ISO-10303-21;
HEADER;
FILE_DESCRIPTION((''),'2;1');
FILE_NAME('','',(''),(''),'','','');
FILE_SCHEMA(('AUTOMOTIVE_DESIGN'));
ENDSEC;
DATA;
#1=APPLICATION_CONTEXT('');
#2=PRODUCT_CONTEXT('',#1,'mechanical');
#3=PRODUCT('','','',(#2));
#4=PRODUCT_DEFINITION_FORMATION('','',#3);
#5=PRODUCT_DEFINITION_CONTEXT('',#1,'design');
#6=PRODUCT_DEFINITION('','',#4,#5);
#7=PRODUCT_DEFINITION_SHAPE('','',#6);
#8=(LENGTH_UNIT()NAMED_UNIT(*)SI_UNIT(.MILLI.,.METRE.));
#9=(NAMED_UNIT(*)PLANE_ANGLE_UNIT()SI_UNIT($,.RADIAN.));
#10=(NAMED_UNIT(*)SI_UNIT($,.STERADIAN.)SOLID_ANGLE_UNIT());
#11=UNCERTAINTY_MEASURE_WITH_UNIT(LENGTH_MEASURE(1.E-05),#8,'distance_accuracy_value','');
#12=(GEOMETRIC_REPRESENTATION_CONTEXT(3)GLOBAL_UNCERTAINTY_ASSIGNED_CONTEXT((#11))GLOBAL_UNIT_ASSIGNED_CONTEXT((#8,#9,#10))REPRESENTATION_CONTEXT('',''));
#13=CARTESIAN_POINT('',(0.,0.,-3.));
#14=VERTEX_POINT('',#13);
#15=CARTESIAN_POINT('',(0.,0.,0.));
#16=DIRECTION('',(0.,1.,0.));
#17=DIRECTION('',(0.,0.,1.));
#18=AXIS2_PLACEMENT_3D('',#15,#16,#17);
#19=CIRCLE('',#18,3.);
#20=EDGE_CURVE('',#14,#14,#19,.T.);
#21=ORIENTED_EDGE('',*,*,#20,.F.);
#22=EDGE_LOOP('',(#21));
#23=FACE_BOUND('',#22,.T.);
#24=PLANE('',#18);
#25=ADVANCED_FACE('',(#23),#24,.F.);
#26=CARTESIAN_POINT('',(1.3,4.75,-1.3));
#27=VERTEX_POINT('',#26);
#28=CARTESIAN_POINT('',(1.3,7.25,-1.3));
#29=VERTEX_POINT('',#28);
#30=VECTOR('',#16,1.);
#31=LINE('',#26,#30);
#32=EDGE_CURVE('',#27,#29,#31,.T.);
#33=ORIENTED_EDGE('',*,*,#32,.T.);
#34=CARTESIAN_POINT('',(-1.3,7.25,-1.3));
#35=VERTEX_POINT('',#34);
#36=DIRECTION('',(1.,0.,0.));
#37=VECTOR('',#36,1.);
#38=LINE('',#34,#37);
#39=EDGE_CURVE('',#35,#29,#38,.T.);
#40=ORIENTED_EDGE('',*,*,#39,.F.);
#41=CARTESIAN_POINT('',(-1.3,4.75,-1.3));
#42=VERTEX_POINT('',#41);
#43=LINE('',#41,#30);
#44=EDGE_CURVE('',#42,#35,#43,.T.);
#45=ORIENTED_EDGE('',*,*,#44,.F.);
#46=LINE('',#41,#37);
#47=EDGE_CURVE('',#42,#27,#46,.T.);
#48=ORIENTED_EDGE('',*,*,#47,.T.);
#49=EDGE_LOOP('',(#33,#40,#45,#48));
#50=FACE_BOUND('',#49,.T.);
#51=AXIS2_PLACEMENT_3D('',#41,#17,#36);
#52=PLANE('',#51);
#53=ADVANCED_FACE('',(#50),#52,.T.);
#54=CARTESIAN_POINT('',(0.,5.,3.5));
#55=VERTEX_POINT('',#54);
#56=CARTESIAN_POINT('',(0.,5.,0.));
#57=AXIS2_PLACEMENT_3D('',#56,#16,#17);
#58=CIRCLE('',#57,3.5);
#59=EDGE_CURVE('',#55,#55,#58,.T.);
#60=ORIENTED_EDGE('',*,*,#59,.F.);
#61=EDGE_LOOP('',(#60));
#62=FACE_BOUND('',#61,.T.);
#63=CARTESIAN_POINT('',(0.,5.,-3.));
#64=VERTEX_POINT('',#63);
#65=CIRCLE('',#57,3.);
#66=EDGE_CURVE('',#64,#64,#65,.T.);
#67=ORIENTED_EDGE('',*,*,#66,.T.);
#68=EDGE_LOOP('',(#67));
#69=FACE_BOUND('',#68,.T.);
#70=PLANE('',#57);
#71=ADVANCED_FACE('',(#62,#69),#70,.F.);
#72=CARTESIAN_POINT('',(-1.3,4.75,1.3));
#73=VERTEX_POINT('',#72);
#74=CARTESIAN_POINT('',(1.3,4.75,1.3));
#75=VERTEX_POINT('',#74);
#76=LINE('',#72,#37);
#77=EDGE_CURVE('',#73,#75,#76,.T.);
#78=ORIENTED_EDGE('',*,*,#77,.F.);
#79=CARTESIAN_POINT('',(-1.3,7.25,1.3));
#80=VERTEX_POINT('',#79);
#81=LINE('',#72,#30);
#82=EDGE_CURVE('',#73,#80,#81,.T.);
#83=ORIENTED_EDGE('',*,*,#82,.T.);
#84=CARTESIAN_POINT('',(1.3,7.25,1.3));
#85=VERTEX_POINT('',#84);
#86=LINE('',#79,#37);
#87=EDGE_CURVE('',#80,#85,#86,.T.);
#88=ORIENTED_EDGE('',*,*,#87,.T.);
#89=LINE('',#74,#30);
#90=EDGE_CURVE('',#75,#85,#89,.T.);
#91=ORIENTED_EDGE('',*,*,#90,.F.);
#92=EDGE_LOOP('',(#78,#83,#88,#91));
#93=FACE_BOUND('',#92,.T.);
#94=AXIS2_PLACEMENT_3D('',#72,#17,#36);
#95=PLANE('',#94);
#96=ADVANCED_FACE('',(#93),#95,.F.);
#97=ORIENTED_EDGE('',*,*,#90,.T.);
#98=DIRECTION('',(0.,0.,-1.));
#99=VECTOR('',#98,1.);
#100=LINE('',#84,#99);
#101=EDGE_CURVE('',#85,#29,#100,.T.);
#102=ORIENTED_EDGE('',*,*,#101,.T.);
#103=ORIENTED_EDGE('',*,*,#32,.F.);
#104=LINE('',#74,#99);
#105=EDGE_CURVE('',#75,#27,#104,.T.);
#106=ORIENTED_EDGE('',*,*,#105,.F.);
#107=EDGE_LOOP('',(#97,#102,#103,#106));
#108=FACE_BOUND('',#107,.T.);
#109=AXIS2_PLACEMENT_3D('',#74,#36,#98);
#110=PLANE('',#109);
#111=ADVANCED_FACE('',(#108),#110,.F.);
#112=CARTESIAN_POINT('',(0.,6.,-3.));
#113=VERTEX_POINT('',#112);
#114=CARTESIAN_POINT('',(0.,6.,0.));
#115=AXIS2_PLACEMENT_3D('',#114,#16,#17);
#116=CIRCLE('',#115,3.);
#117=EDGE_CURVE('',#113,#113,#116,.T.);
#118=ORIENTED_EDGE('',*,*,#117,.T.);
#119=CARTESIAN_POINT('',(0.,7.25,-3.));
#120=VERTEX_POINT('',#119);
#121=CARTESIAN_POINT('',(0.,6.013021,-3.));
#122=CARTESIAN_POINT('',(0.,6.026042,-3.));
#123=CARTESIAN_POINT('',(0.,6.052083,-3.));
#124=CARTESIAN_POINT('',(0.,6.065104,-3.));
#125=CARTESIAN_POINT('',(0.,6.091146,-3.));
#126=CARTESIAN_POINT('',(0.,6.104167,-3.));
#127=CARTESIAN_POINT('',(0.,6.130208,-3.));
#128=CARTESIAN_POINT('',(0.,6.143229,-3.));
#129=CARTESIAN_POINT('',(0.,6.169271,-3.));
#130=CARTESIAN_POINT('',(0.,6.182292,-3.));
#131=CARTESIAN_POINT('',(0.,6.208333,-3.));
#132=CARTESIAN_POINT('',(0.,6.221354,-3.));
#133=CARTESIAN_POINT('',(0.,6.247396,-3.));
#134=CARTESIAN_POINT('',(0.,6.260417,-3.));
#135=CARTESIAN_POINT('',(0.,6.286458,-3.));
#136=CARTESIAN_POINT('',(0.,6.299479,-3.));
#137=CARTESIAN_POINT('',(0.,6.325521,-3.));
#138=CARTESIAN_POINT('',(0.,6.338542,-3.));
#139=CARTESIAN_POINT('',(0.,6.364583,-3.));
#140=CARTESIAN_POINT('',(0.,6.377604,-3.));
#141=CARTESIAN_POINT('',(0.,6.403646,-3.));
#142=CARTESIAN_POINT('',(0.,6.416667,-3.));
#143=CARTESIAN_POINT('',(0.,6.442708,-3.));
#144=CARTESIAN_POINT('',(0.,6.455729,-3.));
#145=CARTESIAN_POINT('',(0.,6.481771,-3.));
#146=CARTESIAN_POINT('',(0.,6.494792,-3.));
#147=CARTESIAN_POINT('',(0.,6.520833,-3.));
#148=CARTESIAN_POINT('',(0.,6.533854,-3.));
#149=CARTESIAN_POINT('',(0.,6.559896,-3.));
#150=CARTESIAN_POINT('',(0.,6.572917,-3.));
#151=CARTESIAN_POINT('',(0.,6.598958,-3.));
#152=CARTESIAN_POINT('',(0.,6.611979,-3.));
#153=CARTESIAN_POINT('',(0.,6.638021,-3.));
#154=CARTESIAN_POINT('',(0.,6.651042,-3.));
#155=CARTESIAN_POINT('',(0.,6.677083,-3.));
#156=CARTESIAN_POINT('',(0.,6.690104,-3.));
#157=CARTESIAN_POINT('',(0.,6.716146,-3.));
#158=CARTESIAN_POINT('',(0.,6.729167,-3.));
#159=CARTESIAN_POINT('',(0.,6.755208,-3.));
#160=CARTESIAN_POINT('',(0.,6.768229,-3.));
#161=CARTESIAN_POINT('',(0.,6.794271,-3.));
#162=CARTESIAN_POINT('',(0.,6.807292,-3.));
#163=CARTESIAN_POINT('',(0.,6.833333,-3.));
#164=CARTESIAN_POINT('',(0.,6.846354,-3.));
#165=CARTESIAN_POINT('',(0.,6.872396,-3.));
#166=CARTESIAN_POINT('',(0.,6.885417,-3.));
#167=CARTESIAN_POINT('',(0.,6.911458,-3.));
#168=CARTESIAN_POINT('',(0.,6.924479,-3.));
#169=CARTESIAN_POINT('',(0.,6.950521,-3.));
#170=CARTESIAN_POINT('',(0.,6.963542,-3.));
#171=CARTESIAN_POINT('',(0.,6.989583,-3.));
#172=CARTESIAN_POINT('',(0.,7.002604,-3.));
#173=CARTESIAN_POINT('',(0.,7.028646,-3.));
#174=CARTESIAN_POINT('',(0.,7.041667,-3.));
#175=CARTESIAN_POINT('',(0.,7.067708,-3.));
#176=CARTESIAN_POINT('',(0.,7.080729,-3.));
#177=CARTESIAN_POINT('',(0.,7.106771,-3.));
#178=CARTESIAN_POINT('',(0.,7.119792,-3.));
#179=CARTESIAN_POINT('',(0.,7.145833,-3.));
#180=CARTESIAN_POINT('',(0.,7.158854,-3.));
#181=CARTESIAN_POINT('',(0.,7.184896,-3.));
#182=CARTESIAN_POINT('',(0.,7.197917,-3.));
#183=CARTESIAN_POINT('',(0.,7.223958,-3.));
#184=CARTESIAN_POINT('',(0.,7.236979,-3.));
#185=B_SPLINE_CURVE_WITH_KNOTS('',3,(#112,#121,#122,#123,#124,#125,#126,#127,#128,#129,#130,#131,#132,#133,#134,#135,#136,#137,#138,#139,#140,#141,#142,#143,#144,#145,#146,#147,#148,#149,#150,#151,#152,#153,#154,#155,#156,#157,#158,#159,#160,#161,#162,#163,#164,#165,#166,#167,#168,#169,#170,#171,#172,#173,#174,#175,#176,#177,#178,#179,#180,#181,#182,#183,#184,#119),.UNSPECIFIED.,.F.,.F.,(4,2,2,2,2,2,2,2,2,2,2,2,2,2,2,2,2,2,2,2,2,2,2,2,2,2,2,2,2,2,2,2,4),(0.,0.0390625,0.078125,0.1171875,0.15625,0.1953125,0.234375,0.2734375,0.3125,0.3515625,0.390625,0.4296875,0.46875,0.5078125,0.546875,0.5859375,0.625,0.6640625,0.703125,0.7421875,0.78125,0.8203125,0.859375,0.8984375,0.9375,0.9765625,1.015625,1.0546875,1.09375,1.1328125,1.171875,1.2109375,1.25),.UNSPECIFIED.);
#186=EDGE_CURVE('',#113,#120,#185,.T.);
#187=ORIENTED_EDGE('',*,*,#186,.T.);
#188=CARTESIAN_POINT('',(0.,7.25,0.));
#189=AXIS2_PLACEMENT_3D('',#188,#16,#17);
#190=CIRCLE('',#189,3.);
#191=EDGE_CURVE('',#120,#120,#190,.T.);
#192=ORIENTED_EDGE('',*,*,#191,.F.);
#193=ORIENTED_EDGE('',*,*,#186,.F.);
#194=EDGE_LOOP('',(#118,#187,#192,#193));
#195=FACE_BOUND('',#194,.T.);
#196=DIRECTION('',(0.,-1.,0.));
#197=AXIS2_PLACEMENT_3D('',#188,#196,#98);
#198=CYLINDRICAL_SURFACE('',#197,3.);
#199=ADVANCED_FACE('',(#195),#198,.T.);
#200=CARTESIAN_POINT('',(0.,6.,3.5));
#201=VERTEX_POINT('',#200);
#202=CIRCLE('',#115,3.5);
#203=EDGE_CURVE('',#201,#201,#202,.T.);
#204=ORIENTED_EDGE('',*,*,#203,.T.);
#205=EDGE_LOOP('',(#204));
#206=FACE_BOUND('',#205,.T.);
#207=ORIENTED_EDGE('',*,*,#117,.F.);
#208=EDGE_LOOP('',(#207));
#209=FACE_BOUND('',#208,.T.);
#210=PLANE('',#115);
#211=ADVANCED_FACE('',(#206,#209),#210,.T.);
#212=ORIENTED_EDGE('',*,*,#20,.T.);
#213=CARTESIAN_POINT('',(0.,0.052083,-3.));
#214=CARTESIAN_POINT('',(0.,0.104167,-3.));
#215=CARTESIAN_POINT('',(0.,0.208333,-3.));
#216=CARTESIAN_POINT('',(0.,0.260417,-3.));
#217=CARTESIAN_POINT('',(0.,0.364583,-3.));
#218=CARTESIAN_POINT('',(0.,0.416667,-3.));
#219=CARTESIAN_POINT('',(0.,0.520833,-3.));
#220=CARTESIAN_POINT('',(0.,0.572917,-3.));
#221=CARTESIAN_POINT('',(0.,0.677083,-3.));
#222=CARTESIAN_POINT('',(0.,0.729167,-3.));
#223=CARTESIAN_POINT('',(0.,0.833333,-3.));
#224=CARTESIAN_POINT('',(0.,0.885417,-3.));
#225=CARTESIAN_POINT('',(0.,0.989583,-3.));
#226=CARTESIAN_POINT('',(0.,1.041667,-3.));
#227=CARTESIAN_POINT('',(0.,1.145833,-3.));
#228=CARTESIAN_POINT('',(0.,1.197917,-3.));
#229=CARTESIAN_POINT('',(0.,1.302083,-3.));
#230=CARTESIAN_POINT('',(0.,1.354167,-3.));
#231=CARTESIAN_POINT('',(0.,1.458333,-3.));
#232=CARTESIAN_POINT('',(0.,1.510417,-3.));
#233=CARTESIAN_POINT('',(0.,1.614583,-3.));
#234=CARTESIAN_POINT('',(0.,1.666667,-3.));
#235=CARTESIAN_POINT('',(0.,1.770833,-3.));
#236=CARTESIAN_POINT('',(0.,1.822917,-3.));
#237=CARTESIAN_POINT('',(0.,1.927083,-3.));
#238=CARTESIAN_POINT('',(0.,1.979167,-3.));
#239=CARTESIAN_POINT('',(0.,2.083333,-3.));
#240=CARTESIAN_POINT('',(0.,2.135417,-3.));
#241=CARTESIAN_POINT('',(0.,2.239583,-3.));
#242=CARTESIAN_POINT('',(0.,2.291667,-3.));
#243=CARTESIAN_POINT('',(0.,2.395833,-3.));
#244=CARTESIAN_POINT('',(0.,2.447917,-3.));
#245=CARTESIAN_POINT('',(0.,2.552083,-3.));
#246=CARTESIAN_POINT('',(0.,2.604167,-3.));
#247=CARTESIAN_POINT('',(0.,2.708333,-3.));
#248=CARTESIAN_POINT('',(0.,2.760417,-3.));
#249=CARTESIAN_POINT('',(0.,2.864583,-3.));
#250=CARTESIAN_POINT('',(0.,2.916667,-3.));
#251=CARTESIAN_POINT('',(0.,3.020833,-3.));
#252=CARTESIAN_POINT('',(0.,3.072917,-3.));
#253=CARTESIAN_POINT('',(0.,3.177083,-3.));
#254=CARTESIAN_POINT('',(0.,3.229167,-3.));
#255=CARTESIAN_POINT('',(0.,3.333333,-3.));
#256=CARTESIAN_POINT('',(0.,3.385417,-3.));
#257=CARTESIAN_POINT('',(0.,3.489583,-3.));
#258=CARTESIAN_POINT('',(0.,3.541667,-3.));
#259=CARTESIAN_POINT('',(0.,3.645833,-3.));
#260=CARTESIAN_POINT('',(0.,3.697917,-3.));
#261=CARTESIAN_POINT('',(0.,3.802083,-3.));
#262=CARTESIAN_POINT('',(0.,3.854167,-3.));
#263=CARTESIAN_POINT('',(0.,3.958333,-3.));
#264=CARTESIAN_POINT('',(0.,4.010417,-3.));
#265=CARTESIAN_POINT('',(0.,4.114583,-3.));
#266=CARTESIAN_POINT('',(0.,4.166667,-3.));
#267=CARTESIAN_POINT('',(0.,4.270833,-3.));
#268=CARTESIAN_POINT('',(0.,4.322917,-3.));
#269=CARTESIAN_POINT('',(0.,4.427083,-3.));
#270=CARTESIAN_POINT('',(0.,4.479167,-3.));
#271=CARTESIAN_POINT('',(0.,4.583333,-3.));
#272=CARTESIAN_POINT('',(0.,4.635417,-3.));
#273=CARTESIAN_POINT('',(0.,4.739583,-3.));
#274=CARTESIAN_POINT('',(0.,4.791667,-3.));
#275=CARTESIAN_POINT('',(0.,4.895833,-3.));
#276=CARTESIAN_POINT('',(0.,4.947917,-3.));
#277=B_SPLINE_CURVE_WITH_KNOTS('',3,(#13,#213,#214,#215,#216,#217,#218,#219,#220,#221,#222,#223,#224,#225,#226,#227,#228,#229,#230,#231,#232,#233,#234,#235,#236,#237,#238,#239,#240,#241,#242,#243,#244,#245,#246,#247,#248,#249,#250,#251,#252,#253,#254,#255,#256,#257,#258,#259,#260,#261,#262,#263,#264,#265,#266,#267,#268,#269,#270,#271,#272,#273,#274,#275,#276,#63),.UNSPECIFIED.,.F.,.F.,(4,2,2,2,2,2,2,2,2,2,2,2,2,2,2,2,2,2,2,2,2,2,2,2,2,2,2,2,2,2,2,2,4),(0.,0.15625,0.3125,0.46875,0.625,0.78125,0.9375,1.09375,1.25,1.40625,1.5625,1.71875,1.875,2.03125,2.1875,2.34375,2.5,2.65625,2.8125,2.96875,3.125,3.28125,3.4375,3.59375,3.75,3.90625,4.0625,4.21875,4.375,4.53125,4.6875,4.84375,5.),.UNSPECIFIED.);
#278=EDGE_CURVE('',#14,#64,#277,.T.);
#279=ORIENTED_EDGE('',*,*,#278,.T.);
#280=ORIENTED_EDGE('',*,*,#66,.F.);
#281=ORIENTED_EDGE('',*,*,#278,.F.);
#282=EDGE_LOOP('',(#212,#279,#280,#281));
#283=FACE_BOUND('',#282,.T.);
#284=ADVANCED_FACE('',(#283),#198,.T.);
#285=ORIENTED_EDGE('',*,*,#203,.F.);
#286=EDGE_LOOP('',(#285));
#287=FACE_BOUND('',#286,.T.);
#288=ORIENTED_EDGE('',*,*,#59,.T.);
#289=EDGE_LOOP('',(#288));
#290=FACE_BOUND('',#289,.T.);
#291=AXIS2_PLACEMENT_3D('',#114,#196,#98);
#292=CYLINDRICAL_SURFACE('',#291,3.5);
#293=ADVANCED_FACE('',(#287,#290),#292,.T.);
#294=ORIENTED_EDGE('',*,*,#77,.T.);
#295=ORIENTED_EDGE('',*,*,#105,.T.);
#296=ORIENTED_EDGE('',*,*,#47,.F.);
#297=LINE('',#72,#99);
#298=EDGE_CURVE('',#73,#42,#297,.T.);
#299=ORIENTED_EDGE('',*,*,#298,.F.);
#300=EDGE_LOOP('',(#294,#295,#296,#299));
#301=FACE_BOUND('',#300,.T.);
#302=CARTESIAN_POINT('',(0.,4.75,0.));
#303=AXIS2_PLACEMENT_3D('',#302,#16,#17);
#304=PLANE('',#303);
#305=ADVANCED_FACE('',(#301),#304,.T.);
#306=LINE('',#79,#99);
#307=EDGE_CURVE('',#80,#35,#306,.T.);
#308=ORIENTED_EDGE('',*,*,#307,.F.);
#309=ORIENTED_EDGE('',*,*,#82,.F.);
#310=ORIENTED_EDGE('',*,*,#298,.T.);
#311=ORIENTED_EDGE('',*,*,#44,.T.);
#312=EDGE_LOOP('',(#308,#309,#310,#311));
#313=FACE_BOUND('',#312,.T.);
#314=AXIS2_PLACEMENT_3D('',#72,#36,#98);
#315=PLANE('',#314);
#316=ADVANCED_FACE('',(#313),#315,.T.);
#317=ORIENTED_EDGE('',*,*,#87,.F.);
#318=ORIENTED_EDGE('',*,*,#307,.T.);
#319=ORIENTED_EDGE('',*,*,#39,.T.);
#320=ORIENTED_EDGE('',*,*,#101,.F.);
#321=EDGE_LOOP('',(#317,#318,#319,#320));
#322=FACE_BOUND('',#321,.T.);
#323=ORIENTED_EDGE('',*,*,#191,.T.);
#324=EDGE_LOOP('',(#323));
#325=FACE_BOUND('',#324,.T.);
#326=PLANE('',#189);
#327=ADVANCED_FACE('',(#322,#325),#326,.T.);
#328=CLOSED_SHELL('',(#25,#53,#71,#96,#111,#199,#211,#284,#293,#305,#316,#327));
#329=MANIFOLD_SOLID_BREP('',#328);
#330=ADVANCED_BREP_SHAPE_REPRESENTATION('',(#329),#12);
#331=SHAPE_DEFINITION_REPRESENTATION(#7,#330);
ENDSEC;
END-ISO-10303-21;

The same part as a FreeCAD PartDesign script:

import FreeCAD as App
import Part
import Sketcher
from FreeCAD import Vector


def add_polygon(sketch, points):
    """Adds a closed chain of lines whose ends are joined by coincident constraints."""
    first, n = sketch.GeometryCount, len(points)
    for a, b in zip(points, points[1:] + points[:1]):
        sketch.addGeometry(Part.LineSegment(App.Vector(*a, 0), App.Vector(*b, 0)), False)
    for i in range(n):
        sketch.addConstraint(Sketcher.Constraint("Coincident", first + i, 2, first + (i + 1) % n, 1))

doc = App.newDocument("Part")
body = doc.addObject("PartDesign::Body", "Body")

# Sketch on XZ plane
sketch1 = doc.addObject("Sketcher::SketchObject", "Sketch")
body.addObject(sketch1)
sketch1.AttachmentSupport = (doc.XZ_Plane, [""])
sketch1.MapMode = "FlatFace"
sketch1.addGeometry(Part.Circle(Vector(0, 0, 0), Vector(0, 0, 1), 3), False)
sketch1.addConstraint([
    Sketcher.Constraint("Coincident", 0, 3, -1, 1),
    Sketcher.Constraint("Diameter", 0, 6.0),
])
pad1 = doc.addObject("PartDesign::Pad", "Pad")
body.addObject(pad1)
pad1.Profile = sketch1
pad1.Length = 7.25
pad1.Reversed = True

# Sketch on XZ plane
sketch2 = doc.addObject("Sketcher::SketchObject", "Sketch001")
body.addObject(sketch2)
sketch2.AttachmentSupport = (doc.XZ_Plane, [""])
sketch2.MapMode = "FlatFace"
sketch2.AttachmentOffset = App.Placement(Vector(0, 0, -5), App.Rotation())
sketch2.addGeometry(Part.Circle(Vector(0, 0, 0), Vector(0, 0, 1), 3.5), False)
sketch2.addConstraint([
    Sketcher.Constraint("Coincident", 0, 3, -1, 1),
    Sketcher.Constraint("Diameter", 0, 7.0),
])
pad2 = doc.addObject("PartDesign::Pad", "Pad001")
body.addObject(pad2)
pad2.Profile = sketch2
pad2.Length = 1
pad2.Reversed = True

# Sketch on XZ plane
sketch3 = doc.addObject("Sketcher::SketchObject", "Sketch002")
body.addObject(sketch3)
sketch3.AttachmentSupport = (doc.XZ_Plane, [""])
sketch3.MapMode = "FlatFace"
sketch3.AttachmentOffset = App.Placement(Vector(0, 0, -7.25), App.Rotation())
add_polygon(sketch3, [(-1.3, -1.3), (-1.3, 1.3), (1.3, 1.3), (1.3, -1.3)])  # lines 0-3
sketch3.addConstraint([
    Sketcher.Constraint("Vertical", 0),
    Sketcher.Constraint("Horizontal", 1),
    Sketcher.Constraint("Vertical", 2),
    Sketcher.Constraint("Horizontal", 3),
    Sketcher.Constraint("Symmetric", 0, 2, 2, 2, -1, 1),
    Sketcher.Constraint("Equal", 3, 0),
    Sketcher.Constraint("DistanceX", 1, 1, 1, 2, 2.6),
])
pocket1 = doc.addObject("PartDesign::Pocket", "Pocket")
body.addObject(pocket1)
pocket1.Profile = sketch3
pocket1.Length = 2.5
pocket1.Reversed = True

doc.recompute()
